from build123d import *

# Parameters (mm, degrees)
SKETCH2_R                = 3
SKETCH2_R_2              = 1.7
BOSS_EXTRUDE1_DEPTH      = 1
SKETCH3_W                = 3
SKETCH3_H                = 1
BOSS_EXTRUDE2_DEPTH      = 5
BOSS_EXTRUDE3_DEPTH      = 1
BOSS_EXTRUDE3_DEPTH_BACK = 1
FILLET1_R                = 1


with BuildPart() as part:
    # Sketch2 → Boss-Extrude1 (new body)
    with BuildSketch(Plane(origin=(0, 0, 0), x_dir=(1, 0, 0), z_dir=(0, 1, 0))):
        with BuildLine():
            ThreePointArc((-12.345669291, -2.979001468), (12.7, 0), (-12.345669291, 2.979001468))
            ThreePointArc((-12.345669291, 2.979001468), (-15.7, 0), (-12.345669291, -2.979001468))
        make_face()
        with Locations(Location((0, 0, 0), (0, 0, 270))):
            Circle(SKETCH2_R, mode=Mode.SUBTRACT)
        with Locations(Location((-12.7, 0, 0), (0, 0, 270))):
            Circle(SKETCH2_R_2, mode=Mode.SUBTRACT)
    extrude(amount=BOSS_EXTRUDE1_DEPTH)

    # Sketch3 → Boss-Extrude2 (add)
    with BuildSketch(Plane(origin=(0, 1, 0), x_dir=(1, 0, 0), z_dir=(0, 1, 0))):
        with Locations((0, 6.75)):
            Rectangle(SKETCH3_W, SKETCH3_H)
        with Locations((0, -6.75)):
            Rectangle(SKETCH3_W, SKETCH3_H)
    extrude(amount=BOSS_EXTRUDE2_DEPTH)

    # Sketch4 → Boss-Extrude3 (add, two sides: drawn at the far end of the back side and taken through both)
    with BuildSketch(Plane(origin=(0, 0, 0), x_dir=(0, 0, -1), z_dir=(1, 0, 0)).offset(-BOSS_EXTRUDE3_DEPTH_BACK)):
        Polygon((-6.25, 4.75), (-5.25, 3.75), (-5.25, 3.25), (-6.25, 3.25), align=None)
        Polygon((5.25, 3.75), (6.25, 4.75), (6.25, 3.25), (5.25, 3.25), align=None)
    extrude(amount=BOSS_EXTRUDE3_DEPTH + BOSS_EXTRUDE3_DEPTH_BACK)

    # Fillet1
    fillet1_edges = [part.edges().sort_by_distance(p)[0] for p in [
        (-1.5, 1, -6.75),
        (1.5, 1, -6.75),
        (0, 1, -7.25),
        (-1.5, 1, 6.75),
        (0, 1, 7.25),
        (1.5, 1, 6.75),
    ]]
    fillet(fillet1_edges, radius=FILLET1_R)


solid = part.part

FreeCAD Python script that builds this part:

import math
import FreeCAD as App
import Part
import Sketcher
from FreeCAD import Vector
Q = App.Units.Quantity


def edges_at(feature, points):
    """Names of the edges that pass closest to the given points."""
    edges = feature.Shape.Edges
    near = lambda p: min(range(len(edges)), key=lambda i: edges[i].distToShape(Part.Vertex(*p))[0])
    return sorted({f"Edge{near(p) + 1}" for p in points})


def add_polygon(sketch, points):
    """Adds a closed chain of lines whose ends are joined by coincident constraints."""
    first, n = sketch.GeometryCount, len(points)
    for a, b in zip(points, points[1:] + points[:1]):
        sketch.addGeometry(Part.LineSegment(App.Vector(*a, 0), App.Vector(*b, 0)), False)
    for i in range(n):
        sketch.addConstraint(Sketcher.Constraint("Coincident", first + i, 2, first + (i + 1) % n, 1))

doc = App.newDocument("Part")
body = doc.addObject("PartDesign::Body", "Body")

sketch1 = body.newObject("Sketcher::SketchObject", "Sketch")
sketch1.AttachmentSupport = (doc.getObject("XZ_Plane"), [""])
sketch1.MapMode = "FlatFace"
sketch1.addGeometry([
    Part.ArcOfCircle(Part.Circle(Vector(0, 0, 0), Vector(0, 0, 1), 12.7), math.radians(-166), math.radians(166)),
    Part.ArcOfCircle(Part.Circle(Vector(-12.7, 0, 0), Vector(0, 0, 1), 3), math.radians(83), math.radians(277)),
    Part.Circle(Vector(-12.7, 0, 0), Vector(0, 0, 1), 1.7),
    Part.Circle(Vector(0, 0, 0), Vector(0, 0, 1), 3),
], False)
sketch1.addConstraint([
    Sketcher.Constraint("Coincident", 0, 1, 1, 2),
    Sketcher.Constraint("Coincident", 1, 1, 0, 2),
    Sketcher.Constraint("Coincident", 0, 3, -1, 1),
    Sketcher.Constraint("Coincident", 3, 3, -1, 1),
    Sketcher.Constraint("Coincident", 2, 3, 1, 3),
    Sketcher.Constraint("Equal", 1, 3),
    Sketcher.Constraint("PointOnObject", 1, 3, -1),
    Sketcher.Constraint("Diameter", 3, Q("6 mm")),
    Sketcher.Constraint("Diameter", 2, Q("3.4 mm")),
    Sketcher.Constraint("Radius", 0, Q("12.7 mm")),
    Sketcher.Constraint("DistanceX", 1, 3, -1, 1, Q("12.7 mm")),
])
pad1 = body.newObject("PartDesign::Pad", "Pad")
pad1.Profile = sketch1
pad1.Length = 1
pad1.Reversed = True

sketch2 = body.newObject("Sketcher::SketchObject", "Sketch001")
sketch2.AttachmentSupport = (doc.getObject("XZ_Plane"), [""])
sketch2.MapMode = "FlatFace"
sketch2.AttachmentOffset = App.Placement(Vector(0, 0, -1), App.Rotation())
add_polygon(sketch2, [(-1.5, -7.2), (-1.5, -6.2), (1.5, -6.2), (1.5, -7.2)])
add_polygon(sketch2, [(-1.5, 6.2), (-1.5, 7.2), (1.5, 7.2), (1.5, 6.2)])
sketch2.addConstraint([
    Sketcher.Constraint("Vertical", 0),
    Sketcher.Constraint("Horizontal", 1),
    Sketcher.Constraint("Vertical", 2),
    Sketcher.Constraint("Horizontal", 3),
    Sketcher.Constraint("Vertical", 4),
    Sketcher.Constraint("Horizontal", 5),
    Sketcher.Constraint("Vertical", 6),
    Sketcher.Constraint("Horizontal", 7),
    Sketcher.Constraint("Symmetric", 2, 2, 4, 2, -1, 1),
    Sketcher.Constraint("Symmetric", 0, 2, 6, 2, -1, 1),
    Sketcher.Constraint("Vertical", 3, 2, 4, 2),
    Sketcher.Constraint("DistanceX", 1, 1, 1, 2, Q("3 mm")),
    Sketcher.Constraint("DistanceY", 0, 1, 0, 2, Q("1 mm")),
    Sketcher.Constraint("DistanceY", 0, 2, 4, 2, Q("13.5 mm")),
])
pad2 = body.newObject("PartDesign::Pad", "Pad001")
pad2.Profile = sketch2
pad2.Length = 5
pad2.Reversed = True

sketch3 = body.newObject("Sketcher::SketchObject", "Sketch002")
sketch3.AttachmentSupport = (doc.getObject("YZ_Plane"), [""])
sketch3.MapMode = "FlatFace"
add_polygon(sketch3, [(3.8, 5.2), (4.8, 6.2), (3.2, 6.2), (3.2, 5.2)])
add_polygon(sketch3, [(4.8, -6.2), (3.8, -5.2), (3.2, -5.2), (3.2, -6.2)])
sketch3.addConstraint([
    Sketcher.Constraint("Horizontal", 1),
    Sketcher.Constraint("Vertical", 2),
    Sketcher.Constraint("Horizontal", 3),
    Sketcher.Constraint("Horizontal", 5),
    Sketcher.Constraint("Vertical", 6),
    Sketcher.Constraint("Horizontal", 7),
    Sketcher.Constraint("Symmetric", 3, 2, 4, 2, -1),
    Sketcher.Constraint("Symmetric", 1, 2, 6, 2, -1),
    Sketcher.Constraint("Perpendicular", 0, 4),
    Sketcher.Constraint("Vertical", 0, 2, 7, 2),
    Sketcher.Constraint("DistanceY", 2, 2, 2, 1, Q("1 mm")),
    Sketcher.Constraint("DistanceX", 1, 2, 1, 1, Q("1.5 mm")),
    Sketcher.Constraint("DistanceY", 4, 2, 3, 2, Q("10.5 mm")),
    Sketcher.Constraint("DistanceX", -1, 1, 0, 2, Q("4.75 mm")),
])
pad3 = body.newObject("PartDesign::Pad", "Pad002")
pad3.Profile = sketch3
pad3.Type = "TwoLengths"
pad3.Length = 1
pad3.Length2 = 1
doc.recompute()

fillet = body.newObject("PartDesign::Fillet", "Fillet")
fillet.Base = (pad3, edges_at(pad3, [
    (-1.5, 1, -6.75),
    (1.5, 1, -6.75),
    (0, 1, -7.25),
    (-1.5, 1, 6.75),
    (0, 1, 7.25),
    (1.5, 1, 6.75),
]))
fillet.Radius = 1

doc.recompute()
